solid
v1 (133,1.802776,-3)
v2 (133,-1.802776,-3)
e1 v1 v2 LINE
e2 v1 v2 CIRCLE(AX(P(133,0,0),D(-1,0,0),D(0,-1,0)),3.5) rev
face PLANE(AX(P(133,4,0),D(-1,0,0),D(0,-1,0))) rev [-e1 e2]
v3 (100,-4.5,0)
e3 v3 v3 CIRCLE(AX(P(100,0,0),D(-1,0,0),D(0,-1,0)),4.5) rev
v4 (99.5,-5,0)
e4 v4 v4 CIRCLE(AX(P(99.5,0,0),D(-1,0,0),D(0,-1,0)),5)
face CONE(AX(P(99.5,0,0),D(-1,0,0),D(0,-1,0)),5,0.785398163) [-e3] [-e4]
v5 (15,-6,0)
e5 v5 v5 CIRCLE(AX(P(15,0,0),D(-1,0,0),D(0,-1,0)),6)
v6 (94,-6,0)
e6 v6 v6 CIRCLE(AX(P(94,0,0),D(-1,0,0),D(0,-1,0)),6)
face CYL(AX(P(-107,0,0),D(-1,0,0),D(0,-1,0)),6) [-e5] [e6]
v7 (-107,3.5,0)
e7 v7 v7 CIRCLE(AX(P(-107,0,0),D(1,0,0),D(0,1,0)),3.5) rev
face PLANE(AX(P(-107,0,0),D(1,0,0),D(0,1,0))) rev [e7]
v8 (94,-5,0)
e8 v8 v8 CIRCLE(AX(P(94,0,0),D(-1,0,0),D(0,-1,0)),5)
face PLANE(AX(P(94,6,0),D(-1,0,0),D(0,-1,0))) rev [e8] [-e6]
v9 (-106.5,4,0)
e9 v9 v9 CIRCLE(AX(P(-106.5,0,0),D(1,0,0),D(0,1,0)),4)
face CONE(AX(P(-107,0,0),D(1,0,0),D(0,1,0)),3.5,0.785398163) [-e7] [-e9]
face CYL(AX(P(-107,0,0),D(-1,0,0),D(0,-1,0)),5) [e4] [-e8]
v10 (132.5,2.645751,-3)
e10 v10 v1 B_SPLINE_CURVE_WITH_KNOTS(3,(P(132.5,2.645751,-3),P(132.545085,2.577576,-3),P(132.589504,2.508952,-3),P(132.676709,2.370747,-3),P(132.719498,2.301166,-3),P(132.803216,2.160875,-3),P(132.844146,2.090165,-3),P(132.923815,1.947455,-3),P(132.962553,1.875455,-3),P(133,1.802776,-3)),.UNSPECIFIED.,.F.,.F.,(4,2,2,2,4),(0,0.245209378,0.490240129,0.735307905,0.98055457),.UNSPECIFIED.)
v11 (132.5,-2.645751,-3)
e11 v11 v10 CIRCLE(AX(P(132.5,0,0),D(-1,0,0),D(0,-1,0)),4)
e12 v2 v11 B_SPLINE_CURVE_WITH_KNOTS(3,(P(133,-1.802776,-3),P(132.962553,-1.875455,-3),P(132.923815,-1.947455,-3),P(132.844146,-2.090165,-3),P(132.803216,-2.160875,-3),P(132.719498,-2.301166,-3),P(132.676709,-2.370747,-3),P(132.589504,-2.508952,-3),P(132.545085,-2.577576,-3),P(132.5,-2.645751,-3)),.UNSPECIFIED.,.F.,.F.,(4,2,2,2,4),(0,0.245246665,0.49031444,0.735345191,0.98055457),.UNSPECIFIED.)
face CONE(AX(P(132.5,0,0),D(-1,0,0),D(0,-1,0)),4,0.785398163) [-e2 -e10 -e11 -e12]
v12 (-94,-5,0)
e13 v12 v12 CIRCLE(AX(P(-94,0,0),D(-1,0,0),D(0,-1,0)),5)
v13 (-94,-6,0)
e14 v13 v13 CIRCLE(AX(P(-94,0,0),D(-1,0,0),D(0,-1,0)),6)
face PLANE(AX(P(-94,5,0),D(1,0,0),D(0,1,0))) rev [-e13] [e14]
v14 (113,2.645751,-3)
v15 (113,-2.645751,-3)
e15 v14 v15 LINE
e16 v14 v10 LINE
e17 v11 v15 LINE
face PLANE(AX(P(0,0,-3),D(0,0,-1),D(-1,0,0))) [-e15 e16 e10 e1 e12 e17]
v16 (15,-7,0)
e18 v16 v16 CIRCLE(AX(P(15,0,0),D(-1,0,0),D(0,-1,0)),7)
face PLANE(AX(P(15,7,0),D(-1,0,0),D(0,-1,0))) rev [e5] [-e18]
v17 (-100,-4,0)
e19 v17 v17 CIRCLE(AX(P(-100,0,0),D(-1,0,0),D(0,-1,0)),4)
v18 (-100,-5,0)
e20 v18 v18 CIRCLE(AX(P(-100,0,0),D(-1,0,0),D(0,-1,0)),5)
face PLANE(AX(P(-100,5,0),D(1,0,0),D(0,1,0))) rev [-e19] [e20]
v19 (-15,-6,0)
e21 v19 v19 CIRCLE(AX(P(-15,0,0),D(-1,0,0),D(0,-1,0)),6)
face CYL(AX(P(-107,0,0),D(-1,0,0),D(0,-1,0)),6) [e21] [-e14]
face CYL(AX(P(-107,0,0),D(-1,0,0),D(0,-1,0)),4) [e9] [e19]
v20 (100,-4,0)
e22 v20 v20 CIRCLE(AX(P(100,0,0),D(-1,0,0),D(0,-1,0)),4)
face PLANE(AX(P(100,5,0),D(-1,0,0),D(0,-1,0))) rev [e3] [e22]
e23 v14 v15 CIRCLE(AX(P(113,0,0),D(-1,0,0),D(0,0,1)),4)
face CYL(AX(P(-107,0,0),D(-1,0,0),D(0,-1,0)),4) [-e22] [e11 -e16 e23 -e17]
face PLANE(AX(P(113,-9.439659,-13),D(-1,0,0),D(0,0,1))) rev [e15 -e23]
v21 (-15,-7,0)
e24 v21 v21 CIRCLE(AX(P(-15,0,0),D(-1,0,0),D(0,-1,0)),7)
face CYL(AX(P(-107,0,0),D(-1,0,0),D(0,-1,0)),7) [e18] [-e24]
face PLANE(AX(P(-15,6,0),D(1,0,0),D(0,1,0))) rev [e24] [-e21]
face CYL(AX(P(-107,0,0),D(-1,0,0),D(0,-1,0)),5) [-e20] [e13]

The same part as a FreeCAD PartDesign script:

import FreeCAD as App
import Part
import Sketcher


def edges_at(feature, points):
    """Names of the edges that pass closest to the given points."""
    edges = feature.Shape.Edges
    near = lambda p: min(range(len(edges)), key=lambda i: edges[i].distToShape(Part.Vertex(*p))[0])
    return sorted({f"Edge{near(p) + 1}" for p in points})

doc = App.newDocument("Part")
body = doc.addObject("PartDesign::Body", "Body")

sketch1 = body.newObject("Sketcher::SketchObject", "Sketch")
sketch1.AttachmentSupport = (doc.getObject("XY_Plane"), [""])
sketch1.MapMode = "FlatFace"
sketch1.addGeometry(Part.LineSegment(App.Vector(-107, 4, 0), App.Vector(-107, 0, 0)), False)
sketch1.addGeometry(Part.LineSegment(App.Vector(-107, 0, 0), App.Vector(133, 0, 0)), False)
sketch1.addGeometry(Part.LineSegment(App.Vector(133, 0, 0), App.Vector(133, 4, 0)), False)
sketch1.addGeometry(Part.LineSegment(App.Vector(133, 4, 0), App.Vector(100, 4, 0)), False)
sketch1.addGeometry(Part.LineSegment(App.Vector(100, 4, 0), App.Vector(100, 5, 0)), False)
sketch1.addGeometry(Part.LineSegment(App.Vector(100, 5, 0), App.Vector(94, 5, 0)), False)
sketch1.addGeometry(Part.LineSegment(App.Vector(94, 5, 0), App.Vector(94, 6, 0)), False)
sketch1.addGeometry(Part.LineSegment(App.Vector(94, 6, 0), App.Vector(15, 6, 0)), False)
sketch1.addGeometry(Part.LineSegment(App.Vector(15, 6, 0), App.Vector(15, 7, 0)), False)
sketch1.addGeometry(Part.LineSegment(App.Vector(15, 7, 0), App.Vector(-15, 7, 0)), False)
sketch1.addGeometry(Part.LineSegment(App.Vector(-15, 7, 0), App.Vector(-15, 6, 0)), False)
sketch1.addGeometry(Part.LineSegment(App.Vector(-15, 6, 0), App.Vector(-94, 6, 0)), False)
sketch1.addGeometry(Part.LineSegment(App.Vector(-94, 6, 0), App.Vector(-94, 5, 0)), False)
sketch1.addGeometry(Part.LineSegment(App.Vector(-94, 5, 0), App.Vector(-100, 5, 0)), False)
sketch1.addGeometry(Part.LineSegment(App.Vector(-100, 5, 0), App.Vector(-100, 4, 0)), False)
sketch1.addGeometry(Part.LineSegment(App.Vector(-100, 4, 0), App.Vector(-107, 4, 0)), False)
sketch1.addConstraint(Sketcher.Constraint("Coincident", 0, 2, 1, 1))
sketch1.addConstraint(Sketcher.Constraint("Coincident", 1, 2, 2, 1))
sketch1.addConstraint(Sketcher.Constraint("Coincident", 2, 2, 3, 1))
sketch1.addConstraint(Sketcher.Constraint("Coincident", 3, 2, 4, 1))
sketch1.addConstraint(Sketcher.Constraint("Coincident", 4, 2, 5, 1))
sketch1.addConstraint(Sketcher.Constraint("Coincident", 5, 2, 6, 1))
sketch1.addConstraint(Sketcher.Constraint("Coincident", 6, 2, 7, 1))
sketch1.addConstraint(Sketcher.Constraint("Coincident", 7, 2, 8, 1))
sketch1.addConstraint(Sketcher.Constraint("Coincident", 8, 2, 9, 1))
sketch1.addConstraint(Sketcher.Constraint("Coincident", 9, 2, 10, 1))
sketch1.addConstraint(Sketcher.Constraint("Coincident", 10, 2, 11, 1))
sketch1.addConstraint(Sketcher.Constraint("Coincident", 11, 2, 12, 1))
sketch1.addConstraint(Sketcher.Constraint("Coincident", 12, 2, 13, 1))
sketch1.addConstraint(Sketcher.Constraint("Coincident", 13, 2, 14, 1))
sketch1.addConstraint(Sketcher.Constraint("Coincident", 14, 2, 15, 1))
sketch1.addConstraint(Sketcher.Constraint("Coincident", 15, 2, 0, 1))
sketch1.addConstraint(Sketcher.Constraint("Vertical", 0))
sketch1.addConstraint(Sketcher.Constraint("Horizontal", 1))
sketch1.addConstraint(Sketcher.Constraint("Vertical", 2))
sketch1.addConstraint(Sketcher.Constraint("Horizontal", 3))
sketch1.addConstraint(Sketcher.Constraint("Vertical", 4))
sketch1.addConstraint(Sketcher.Constraint("Horizontal", 5))
sketch1.addConstraint(Sketcher.Constraint("Vertical", 6))
sketch1.addConstraint(Sketcher.Constraint("Horizontal", 7))
sketch1.addConstraint(Sketcher.Constraint("Vertical", 8))
sketch1.addConstraint(Sketcher.Constraint("Horizontal", 9))
sketch1.addConstraint(Sketcher.Constraint("Vertical", 10))
sketch1.addConstraint(Sketcher.Constraint("Horizontal", 11))
sketch1.addConstraint(Sketcher.Constraint("Vertical", 12))
sketch1.addConstraint(Sketcher.Constraint("Horizontal", 13))
sketch1.addConstraint(Sketcher.Constraint("Vertical", 14))
sketch1.addConstraint(Sketcher.Constraint("Horizontal", 15))
sketch1.addConstraint(Sketcher.Constraint("Symmetric", 7, 2, 10, 2, -2))
sketch1.addConstraint(Sketcher.Constraint("Symmetric", 5, 2, 12, 2, -2))
sketch1.addConstraint(Sketcher.Constraint("Symmetric", 3, 2, 14, 2, -2))
sketch1.addConstraint(Sketcher.Constraint("PointOnObject", 0, 2, -1))
sketch1.addConstraint(Sketcher.Constraint("Equal", 4, 6))
sketch1.addConstraint(Sketcher.Constraint("Equal", 6, 8))
sketch1.addConstraint(Sketcher.Constraint("DistanceX", 1, 1, 1, 2, 240.0))
sketch1.addConstraint(Sketcher.Constraint("DistanceX", 3, 2, 3, 1, 33.0))
sketch1.addConstraint(Sketcher.Constraint("DistanceX", 5, 2, 5, 1, 6.0))
sketch1.addConstraint(Sketcher.Constraint("DistanceX", 7, 2, 7, 1, 79.0))
sketch1.addConstraint(Sketcher.Constraint("DistanceX", 9, 2, 9, 1, 30.0))
sketch1.addConstraint(Sketcher.Constraint("DistanceY", 0, 2, 0, 1, 4.0))
sketch1.addConstraint(Sketcher.Constraint("DistanceY", 4, 1, 4, 2, 1.0))
revolution = body.newObject("PartDesign::Revolution", "Revolution")
revolution.Profile = sketch1
revolution.ReferenceAxis = (sketch1, ["H_Axis"])
revolution.Angle = 360

sketch2 = body.newObject("Sketcher::SketchObject", "Sketch001")
sketch2.AttachmentSupport = (doc.getObject("XY_Plane"), [""])
sketch2.MapMode = "FlatFace"
sketch2.AttachmentOffset = App.Placement(App.Vector(0, 0, -3), App.Rotation())
sketch2.addGeometry(Part.LineSegment(App.Vector(113, 9, 0), App.Vector(113, -9, 0)), False)
sketch2.addGeometry(Part.LineSegment(App.Vector(113, -9, 0), App.Vector(139, -9, 0)), False)
sketch2.addGeometry(Part.LineSegment(App.Vector(139, -9, 0), App.Vector(139, 9, 0)), False)
sketch2.addGeometry(Part.LineSegment(App.Vector(139, 9, 0), App.Vector(113, 9, 0)), False)
sketch2.addConstraint(Sketcher.Constraint("Coincident", 0, 2, 1, 1))
sketch2.addConstraint(Sketcher.Constraint("Coincident", 1, 2, 2, 1))
sketch2.addConstraint(Sketcher.Constraint("Coincident", 2, 2, 3, 1))
sketch2.addConstraint(Sketcher.Constraint("Coincident", 3, 2, 0, 1))
sketch2.addConstraint(Sketcher.Constraint("Vertical", 0))
sketch2.addConstraint(Sketcher.Constraint("Horizontal", 1))
sketch2.addConstraint(Sketcher.Constraint("Vertical", 2))
sketch2.addConstraint(Sketcher.Constraint("Horizontal", 3))
sketch2.addConstraint(Sketcher.Constraint("DistanceX", -1, 1, 0, 2, 113.0))
sketch2.addConstraint(Sketcher.Constraint("DistanceX", 1, 1, 1, 2, 25.545671))
sketch2.addConstraint(Sketcher.Constraint("DistanceY", 0, 2, 0, 1, 18.659122))
sketch2.addConstraint(Sketcher.Constraint("DistanceY", 0, 2, -1, 1, 9.439659))
pocket1 = body.newObject("PartDesign::Pocket", "Pocket")
pocket1.Profile = sketch2
pocket1.Length = 10
doc.recompute()

chamfer = body.newObject("PartDesign::Chamfer", "Chamfer")
chamfer.Base = (pocket1, edges_at(pocket1, [(100, -5, 0), (-107, -4, 0), (133, -1.646, 3.646)]))
chamfer.Size = 0.5

doc.recompute()
